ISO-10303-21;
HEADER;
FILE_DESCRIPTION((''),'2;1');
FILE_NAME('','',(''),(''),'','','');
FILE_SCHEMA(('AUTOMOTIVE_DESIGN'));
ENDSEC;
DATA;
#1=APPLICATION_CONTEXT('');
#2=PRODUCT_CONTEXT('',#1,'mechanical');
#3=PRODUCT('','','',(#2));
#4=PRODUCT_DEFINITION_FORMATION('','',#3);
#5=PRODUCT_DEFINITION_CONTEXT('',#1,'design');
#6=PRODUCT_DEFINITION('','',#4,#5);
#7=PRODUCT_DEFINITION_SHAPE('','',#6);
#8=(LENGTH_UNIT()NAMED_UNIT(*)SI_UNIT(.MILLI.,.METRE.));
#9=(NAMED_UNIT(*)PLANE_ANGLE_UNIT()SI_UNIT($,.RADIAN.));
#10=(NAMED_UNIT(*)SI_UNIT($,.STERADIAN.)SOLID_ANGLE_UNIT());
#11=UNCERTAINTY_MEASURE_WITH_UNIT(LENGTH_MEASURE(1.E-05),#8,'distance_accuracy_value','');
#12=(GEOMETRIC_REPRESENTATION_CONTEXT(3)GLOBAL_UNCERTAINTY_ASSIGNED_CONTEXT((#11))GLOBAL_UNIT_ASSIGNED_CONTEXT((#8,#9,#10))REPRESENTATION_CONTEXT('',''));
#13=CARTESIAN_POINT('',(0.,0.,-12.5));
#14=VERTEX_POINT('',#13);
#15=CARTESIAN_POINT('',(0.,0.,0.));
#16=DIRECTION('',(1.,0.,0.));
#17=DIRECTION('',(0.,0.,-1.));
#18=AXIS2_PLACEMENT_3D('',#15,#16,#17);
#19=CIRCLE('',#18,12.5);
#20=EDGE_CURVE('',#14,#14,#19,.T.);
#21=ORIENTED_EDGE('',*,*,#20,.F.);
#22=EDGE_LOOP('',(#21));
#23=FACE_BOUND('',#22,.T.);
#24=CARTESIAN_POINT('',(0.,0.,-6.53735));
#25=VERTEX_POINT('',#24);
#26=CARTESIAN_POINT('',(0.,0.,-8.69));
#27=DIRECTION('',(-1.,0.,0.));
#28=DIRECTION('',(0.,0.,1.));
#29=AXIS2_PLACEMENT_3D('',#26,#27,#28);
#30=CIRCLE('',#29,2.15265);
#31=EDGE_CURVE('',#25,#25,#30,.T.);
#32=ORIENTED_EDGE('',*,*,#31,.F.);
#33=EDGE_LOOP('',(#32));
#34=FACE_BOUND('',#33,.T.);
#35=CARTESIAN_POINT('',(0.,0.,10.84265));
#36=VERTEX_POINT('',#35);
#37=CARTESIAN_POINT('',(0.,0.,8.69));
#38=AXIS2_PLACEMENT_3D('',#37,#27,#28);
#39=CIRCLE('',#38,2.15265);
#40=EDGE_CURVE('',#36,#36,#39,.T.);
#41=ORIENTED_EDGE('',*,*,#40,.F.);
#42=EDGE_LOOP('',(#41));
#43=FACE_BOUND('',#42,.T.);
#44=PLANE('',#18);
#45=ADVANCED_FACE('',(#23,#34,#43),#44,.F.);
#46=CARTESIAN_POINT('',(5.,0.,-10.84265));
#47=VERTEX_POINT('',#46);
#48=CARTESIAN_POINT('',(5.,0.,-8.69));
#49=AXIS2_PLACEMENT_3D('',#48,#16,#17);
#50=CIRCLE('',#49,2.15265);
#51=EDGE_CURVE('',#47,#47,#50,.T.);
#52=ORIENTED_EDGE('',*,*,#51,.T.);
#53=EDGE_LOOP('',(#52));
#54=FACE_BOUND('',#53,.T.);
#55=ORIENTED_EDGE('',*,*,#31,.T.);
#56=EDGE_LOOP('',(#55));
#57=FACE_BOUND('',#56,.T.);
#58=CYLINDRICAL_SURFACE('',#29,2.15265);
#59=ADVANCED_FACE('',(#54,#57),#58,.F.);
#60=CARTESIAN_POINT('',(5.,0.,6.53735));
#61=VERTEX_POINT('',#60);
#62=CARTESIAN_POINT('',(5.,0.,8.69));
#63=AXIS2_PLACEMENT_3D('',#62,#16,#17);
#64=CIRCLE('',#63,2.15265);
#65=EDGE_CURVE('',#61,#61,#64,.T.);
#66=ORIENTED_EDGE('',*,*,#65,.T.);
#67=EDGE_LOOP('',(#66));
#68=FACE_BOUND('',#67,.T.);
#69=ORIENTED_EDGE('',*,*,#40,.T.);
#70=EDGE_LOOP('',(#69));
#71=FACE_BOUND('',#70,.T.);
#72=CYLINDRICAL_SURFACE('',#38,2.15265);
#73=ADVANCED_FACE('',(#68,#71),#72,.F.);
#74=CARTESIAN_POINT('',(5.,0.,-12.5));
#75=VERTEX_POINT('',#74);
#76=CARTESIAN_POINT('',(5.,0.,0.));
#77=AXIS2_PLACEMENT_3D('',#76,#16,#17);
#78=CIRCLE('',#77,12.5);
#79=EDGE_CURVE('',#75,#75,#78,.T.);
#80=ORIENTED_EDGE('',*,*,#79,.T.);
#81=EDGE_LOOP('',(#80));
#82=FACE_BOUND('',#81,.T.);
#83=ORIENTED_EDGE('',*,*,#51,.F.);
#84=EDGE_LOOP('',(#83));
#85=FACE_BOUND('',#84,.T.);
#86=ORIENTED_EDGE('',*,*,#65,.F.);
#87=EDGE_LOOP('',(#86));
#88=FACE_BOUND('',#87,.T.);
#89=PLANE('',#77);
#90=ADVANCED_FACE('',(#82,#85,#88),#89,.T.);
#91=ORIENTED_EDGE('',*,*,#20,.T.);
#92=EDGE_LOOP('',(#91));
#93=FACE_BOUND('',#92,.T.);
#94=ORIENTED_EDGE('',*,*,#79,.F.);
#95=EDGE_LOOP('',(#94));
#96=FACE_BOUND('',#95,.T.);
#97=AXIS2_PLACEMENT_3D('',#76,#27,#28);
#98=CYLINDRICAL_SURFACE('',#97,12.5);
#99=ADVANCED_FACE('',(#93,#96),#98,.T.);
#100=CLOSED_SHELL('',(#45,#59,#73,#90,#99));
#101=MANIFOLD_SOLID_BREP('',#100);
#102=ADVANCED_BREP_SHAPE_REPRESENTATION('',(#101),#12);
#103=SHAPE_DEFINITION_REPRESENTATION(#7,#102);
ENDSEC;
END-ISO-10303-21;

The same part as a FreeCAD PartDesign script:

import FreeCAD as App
import Part
import Sketcher
from FreeCAD import Vector

doc = App.newDocument("Part")
params = doc.addObject("Spreadsheet::Sheet", "Params")
for row, (alias, value) in enumerate([
    ("sketch1_diameter", "25 mm"),
    ("pad1_length", "5 mm"),
    ("hole_diameter", "4.3053 mm"),
    ("hole_depth", "10.1092 mm"),
], start=1):
    params.set(f"A{row}", alias)
    params.set(f"B{row}", "=" + value)
    params.setAlias(f"B{row}", alias)

body = doc.addObject("PartDesign::Body", "Body")

# Sketch on YZ plane
sketch1 = body.newObject("Sketcher::SketchObject", "Sketch")
sketch1.AttachmentSupport = (doc.getObject("YZ_Plane"), [""])
sketch1.MapMode = "FlatFace"
sketch1.addGeometry(Part.Circle(Vector(0, 0, 0), Vector(0, 0, 1), 12), False)
sketch1.addConstraint([
    Sketcher.Constraint("Coincident", 0, 3, -1, 1),
    Sketcher.Constraint("Diameter", 0, 25.0),
])
sketch1.setExpression("Constraints[1]", "Params.sketch1_diameter")
pad1 = body.newObject("PartDesign::Pad", "Pad")
pad1.Profile = sketch1
pad1.setExpression("Length", "Params.pad1_length")

# Sketch on YZ plane
sketch2 = body.newObject("Sketcher::SketchObject", "Sketch001")
sketch2.AttachmentSupport = (doc.getObject("YZ_Plane"), [""])
sketch2.MapMode = "FlatFace"
sketch2.addGeometry([
    Part.Circle(Vector(0, -8.7, 0), Vector(0, 0, 1), 2.2),
    Part.Circle(Vector(0, 8.7, 0), Vector(0, 0, 1), 2.2),
], False)
sketch2.addConstraint([
    Sketcher.Constraint("Equal", 0, 1),
    Sketcher.Constraint("Symmetric", 0, 3, 1, 3, -1, 1),
    Sketcher.Constraint("PointOnObject", 0, 3, -2),
    Sketcher.Constraint("Diameter", 0, 4.3053),
    Sketcher.Constraint("DistanceY", 0, 3, -1, 1, 8.69),
])
doc.recompute()
hole = body.newObject("PartDesign::Hole", "Hole")
hole.Profile = sketch2
hole.ThreadType = "None"
hole.setExpression("Diameter", "Params.hole_diameter")
hole.DepthType = "Dimension"
hole.setExpression("Depth", "Params.hole_depth")
hole.DrillPoint = "Angled"
hole.DrillPointAngle = 118
hole.Reversed = True

doc.recompute()
